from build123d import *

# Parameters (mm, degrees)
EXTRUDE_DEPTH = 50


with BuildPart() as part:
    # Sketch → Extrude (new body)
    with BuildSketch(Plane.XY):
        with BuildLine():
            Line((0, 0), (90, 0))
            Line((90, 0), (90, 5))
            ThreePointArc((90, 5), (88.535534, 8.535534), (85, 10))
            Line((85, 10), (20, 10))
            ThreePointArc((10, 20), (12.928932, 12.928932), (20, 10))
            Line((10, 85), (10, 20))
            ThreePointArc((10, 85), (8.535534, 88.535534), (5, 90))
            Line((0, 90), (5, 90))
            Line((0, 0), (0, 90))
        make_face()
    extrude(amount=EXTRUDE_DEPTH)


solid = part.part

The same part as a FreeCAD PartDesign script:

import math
import FreeCAD as App
import Part
import Sketcher

doc = App.newDocument("Part")
body = doc.addObject("PartDesign::Body", "Body")

sketch1 = doc.addObject("Sketcher::SketchObject", "Sketch")
body.addObject(sketch1)
sketch1.AttachmentSupport = (doc.XY_Plane, [""])
sketch1.MapMode = "FlatFace"
sketch1.addGeometry(Part.LineSegment(App.Vector(0, 0, 0), App.Vector(90, 0, 0)), False)
sketch1.addGeometry(Part.LineSegment(App.Vector(90, 0, 0), App.Vector(90, 5, 0)), False)
sketch1.addGeometry(Part.ArcOfCircle(Part.Circle(App.Vector(85, 5, 0), App.Vector(0, 0, 1), 5), math.radians(0), math.radians(90)), False)
sketch1.addGeometry(Part.LineSegment(App.Vector(85, 10, 0), App.Vector(20, 10, 0)), False)
sketch1.addGeometry(Part.ArcOfCircle(Part.Circle(App.Vector(20, 20, 0), App.Vector(0, 0, 1), 10), math.radians(180), math.radians(270)), False)
sketch1.addGeometry(Part.LineSegment(App.Vector(10, 20, 0), App.Vector(10, 85, 0)), False)
sketch1.addGeometry(Part.ArcOfCircle(Part.Circle(App.Vector(5, 85, 0), App.Vector(0, 0, 1), 5), math.radians(0), math.radians(90)), False)
sketch1.addGeometry(Part.LineSegment(App.Vector(5, 90, 0), App.Vector(0, 90, 0)), False)
sketch1.addGeometry(Part.LineSegment(App.Vector(0, 90, 0), App.Vector(0, 0, 0)), False)
sketch1.addConstraint(Sketcher.Constraint("Coincident", 0, 2, 1, 1))
sketch1.addConstraint(Sketcher.Constraint("Tangent", 1, 2, 2, 1))
sketch1.addConstraint(Sketcher.Constraint("Tangent", 2, 2, 3, 1))
sketch1.addConstraint(Sketcher.Constraint("Tangent", 3, 2, 4, 2))
sketch1.addConstraint(Sketcher.Constraint("Tangent", 4, 1, 5, 1))
sketch1.addConstraint(Sketcher.Constraint("Tangent", 5, 2, 6, 1))
sketch1.addConstraint(Sketcher.Constraint("Tangent", 6, 2, 7, 1))
sketch1.addConstraint(Sketcher.Constraint("Coincident", 7, 2, 8, 1))
sketch1.addConstraint(Sketcher.Constraint("Coincident", 8, 2, 0, 1))
sketch1.addConstraint(Sketcher.Constraint("Horizontal", 0))
sketch1.addConstraint(Sketcher.Constraint("Vertical", 1))
sketch1.addConstraint(Sketcher.Constraint("Horizontal", 3))
sketch1.addConstraint(Sketcher.Constraint("Vertical", 5))
sketch1.addConstraint(Sketcher.Constraint("Horizontal", 7))
sketch1.addConstraint(Sketcher.Constraint("Vertical", 8))
sketch1.addConstraint(Sketcher.Constraint("Coincident", 8, 2, -1, 1))
sketch1.addConstraint(Sketcher.Constraint("Equal", 2, 6))
sketch1.addConstraint(Sketcher.Constraint("Equal", 7, 1))
sketch1.addConstraint(Sketcher.Constraint("Equal", 3, 5))
sketch1.addConstraint(Sketcher.Constraint("Radius", 2, 5.0))
sketch1.addConstraint(Sketcher.Constraint("Radius", 4, 9.999999))
sketch1.addConstraint(Sketcher.Constraint("DistanceX", 0, 1, 0, 2, 90.0))
sketch1.addConstraint(Sketcher.Constraint("DistanceX", 3, 2, 3, 1, 65.0))
pad1 = doc.addObject("PartDesign::Pad", "Pad")
body.addObject(pad1)
pad1.Profile = sketch1
pad1.Length = 50

doc.recompute()
